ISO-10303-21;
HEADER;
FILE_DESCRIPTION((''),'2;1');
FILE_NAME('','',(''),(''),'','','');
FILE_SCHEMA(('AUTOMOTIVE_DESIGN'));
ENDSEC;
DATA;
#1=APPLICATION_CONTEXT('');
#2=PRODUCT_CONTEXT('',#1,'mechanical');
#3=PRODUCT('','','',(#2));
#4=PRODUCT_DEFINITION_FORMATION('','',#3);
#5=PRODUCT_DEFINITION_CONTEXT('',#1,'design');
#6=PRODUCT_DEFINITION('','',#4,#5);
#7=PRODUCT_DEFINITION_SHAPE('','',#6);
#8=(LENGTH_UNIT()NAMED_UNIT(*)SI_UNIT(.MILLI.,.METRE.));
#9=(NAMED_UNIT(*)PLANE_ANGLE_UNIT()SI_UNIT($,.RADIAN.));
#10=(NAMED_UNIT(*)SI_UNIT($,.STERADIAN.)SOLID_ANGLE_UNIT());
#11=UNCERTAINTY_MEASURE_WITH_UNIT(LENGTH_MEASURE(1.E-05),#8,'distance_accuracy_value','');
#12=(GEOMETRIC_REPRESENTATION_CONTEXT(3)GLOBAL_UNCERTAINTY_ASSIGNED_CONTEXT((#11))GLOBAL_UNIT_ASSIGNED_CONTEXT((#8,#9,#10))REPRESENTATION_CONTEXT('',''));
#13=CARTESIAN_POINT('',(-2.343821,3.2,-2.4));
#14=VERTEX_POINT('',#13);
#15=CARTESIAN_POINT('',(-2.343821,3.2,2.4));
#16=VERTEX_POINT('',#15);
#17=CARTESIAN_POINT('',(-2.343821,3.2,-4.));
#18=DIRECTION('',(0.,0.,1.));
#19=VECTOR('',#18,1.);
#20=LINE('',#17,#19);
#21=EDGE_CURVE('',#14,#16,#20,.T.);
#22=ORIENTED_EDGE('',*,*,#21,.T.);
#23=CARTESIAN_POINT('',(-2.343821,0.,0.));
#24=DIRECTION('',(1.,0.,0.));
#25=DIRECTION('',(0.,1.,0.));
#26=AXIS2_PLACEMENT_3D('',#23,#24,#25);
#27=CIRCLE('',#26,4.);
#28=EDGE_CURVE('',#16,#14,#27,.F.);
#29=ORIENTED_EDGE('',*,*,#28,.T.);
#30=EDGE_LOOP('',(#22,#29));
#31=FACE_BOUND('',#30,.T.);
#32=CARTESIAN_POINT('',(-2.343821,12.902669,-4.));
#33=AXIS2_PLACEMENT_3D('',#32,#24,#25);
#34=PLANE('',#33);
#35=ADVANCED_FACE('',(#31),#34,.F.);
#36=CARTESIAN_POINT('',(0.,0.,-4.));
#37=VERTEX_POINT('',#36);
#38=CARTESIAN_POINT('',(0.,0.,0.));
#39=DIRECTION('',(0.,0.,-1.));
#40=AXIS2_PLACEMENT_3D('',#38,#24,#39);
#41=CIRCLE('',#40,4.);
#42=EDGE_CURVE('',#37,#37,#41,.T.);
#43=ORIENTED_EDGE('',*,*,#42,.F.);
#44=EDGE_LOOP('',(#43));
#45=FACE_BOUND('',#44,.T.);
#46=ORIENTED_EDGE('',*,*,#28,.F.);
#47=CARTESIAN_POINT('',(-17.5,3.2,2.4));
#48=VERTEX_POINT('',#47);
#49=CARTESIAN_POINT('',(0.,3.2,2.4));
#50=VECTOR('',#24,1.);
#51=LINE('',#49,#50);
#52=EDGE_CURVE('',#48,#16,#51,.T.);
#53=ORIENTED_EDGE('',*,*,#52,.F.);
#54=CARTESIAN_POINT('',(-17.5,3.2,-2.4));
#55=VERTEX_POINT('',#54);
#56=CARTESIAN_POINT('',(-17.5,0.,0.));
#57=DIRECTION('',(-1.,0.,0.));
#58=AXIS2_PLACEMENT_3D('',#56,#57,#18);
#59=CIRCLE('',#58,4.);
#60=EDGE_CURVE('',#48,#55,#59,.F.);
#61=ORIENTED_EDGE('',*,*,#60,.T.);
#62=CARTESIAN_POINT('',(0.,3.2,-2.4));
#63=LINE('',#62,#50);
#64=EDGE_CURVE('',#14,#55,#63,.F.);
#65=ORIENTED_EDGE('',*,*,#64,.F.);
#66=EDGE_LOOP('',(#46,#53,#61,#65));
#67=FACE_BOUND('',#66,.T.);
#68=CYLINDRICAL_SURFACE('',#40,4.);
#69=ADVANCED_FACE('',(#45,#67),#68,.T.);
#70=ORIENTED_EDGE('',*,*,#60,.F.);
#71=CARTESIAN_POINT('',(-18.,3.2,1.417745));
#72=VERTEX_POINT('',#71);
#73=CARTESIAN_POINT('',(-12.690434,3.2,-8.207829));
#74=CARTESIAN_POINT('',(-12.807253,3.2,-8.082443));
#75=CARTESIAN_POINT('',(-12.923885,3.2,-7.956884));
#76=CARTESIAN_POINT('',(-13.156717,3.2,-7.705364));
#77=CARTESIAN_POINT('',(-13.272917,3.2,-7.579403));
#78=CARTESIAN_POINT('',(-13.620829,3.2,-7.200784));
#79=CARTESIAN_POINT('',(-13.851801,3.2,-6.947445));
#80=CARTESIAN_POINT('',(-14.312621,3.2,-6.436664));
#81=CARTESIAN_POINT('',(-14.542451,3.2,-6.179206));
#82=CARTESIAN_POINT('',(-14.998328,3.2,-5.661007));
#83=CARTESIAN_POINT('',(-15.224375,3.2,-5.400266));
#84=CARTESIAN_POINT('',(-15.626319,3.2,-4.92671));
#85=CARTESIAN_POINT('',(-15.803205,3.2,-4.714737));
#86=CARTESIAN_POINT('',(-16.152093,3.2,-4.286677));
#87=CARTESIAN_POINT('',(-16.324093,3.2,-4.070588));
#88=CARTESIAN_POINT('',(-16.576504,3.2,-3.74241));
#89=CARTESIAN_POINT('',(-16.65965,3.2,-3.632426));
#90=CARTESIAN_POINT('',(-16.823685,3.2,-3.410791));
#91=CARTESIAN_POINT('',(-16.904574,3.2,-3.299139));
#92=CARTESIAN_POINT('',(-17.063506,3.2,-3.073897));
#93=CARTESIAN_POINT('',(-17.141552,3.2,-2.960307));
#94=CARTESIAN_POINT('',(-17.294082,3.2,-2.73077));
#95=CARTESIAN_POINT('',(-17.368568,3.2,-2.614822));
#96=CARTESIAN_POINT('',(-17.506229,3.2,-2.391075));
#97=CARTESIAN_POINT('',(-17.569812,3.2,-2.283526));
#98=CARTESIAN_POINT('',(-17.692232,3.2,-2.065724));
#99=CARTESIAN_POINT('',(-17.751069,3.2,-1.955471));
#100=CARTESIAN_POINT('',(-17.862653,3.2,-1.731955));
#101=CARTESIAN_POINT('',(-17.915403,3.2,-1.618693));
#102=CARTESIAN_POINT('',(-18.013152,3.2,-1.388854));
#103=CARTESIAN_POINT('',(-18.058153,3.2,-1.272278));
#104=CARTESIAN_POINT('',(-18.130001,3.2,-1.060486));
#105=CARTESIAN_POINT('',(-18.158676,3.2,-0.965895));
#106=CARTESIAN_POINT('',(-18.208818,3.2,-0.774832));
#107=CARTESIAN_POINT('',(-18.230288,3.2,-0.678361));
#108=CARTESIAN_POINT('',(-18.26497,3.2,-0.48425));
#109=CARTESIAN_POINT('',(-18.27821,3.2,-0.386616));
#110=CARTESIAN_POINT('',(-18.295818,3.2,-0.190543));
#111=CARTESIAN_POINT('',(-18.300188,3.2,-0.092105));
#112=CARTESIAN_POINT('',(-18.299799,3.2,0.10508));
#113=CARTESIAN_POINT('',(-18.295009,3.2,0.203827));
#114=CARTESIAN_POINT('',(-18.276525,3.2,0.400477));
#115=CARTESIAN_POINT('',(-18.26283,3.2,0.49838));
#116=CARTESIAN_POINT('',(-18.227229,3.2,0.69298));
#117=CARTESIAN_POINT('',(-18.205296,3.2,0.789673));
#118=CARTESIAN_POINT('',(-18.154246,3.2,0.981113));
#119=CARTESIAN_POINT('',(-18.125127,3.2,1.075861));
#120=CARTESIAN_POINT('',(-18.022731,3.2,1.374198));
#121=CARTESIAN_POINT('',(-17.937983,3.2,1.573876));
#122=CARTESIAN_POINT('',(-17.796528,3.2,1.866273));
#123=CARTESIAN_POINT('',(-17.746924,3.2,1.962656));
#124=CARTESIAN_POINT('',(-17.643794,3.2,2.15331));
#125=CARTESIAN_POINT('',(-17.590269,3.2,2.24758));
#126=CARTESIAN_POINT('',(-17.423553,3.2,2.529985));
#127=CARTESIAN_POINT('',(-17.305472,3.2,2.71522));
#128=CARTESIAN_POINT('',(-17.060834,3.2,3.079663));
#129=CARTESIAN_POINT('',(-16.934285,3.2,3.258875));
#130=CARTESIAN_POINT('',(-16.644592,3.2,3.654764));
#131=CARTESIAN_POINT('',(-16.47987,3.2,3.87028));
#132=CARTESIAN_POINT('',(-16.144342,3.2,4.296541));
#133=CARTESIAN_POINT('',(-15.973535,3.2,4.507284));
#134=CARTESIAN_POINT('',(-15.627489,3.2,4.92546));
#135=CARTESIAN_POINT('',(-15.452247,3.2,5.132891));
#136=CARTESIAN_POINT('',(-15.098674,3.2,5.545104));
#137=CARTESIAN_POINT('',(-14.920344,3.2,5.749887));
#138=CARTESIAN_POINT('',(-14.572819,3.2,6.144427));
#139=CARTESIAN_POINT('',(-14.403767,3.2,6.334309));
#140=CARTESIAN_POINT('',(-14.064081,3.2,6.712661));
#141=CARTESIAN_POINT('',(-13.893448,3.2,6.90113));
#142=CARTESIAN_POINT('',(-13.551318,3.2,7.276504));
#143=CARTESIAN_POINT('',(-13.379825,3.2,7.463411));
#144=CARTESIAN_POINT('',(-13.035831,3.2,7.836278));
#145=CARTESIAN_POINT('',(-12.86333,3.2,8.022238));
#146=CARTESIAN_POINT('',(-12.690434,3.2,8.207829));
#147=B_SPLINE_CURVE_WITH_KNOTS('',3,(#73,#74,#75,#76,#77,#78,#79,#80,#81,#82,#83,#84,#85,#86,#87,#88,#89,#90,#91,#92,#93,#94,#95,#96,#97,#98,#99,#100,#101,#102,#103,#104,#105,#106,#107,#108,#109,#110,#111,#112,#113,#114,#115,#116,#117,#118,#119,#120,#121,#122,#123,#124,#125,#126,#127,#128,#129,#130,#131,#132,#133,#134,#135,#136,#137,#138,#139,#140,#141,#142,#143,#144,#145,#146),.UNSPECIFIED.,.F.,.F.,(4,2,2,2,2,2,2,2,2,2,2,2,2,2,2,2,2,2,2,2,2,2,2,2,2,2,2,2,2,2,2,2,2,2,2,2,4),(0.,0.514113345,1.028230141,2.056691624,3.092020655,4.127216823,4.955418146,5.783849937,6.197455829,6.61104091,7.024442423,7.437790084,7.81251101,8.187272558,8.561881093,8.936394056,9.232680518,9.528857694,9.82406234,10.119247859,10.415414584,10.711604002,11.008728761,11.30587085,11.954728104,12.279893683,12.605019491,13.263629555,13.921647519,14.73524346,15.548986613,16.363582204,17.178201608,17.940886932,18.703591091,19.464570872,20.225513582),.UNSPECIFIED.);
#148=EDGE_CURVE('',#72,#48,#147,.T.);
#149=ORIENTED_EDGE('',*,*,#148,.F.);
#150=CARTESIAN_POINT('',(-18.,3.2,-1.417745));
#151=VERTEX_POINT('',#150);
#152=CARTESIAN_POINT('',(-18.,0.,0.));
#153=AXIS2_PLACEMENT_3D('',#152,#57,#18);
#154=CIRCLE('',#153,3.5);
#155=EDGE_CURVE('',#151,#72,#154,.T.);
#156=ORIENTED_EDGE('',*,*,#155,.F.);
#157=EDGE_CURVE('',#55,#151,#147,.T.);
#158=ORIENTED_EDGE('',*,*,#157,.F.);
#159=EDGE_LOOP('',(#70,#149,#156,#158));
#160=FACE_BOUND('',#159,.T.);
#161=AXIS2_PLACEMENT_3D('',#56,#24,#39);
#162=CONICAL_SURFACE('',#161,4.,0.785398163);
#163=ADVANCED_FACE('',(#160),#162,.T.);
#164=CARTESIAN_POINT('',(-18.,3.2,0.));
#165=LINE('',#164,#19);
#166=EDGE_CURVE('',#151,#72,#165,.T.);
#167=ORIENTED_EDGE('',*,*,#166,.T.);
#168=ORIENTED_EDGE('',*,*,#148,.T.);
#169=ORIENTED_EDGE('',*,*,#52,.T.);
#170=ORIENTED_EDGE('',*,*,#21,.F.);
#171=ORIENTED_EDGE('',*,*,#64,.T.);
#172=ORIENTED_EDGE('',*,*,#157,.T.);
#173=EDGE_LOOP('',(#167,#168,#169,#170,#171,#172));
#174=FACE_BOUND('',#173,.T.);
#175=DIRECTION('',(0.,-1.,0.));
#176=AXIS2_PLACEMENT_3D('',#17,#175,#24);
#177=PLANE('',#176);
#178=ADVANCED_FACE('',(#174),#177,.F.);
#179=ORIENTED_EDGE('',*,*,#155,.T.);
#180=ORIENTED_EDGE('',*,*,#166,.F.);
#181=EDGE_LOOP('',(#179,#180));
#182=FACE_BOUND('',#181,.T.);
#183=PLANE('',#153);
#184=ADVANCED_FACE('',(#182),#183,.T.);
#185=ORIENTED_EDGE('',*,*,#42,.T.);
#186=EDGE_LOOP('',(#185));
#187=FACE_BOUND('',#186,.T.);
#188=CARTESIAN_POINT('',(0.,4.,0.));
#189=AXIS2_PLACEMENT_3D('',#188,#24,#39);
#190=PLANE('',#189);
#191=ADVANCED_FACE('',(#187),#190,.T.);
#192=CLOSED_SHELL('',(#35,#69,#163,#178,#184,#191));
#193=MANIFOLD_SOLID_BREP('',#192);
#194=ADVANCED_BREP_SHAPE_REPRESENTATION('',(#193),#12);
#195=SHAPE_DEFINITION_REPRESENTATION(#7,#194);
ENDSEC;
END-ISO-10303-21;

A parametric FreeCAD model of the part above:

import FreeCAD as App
import Part
import Sketcher

V = App.Vector


def edges_at(feature, points):
    """Names of the edges that pass closest to the given points."""
    edges = feature.Shape.Edges
    near = lambda p: min(range(len(edges)), key=lambda i: edges[i].distToShape(Part.Vertex(*p))[0])
    return sorted({f"Edge{near(p) + 1}" for p in points})


def add_polygon(sketch, points):
    """Adds a closed chain of lines whose ends are joined by coincident constraints."""
    first, n = sketch.GeometryCount, len(points)
    for a, b in zip(points, points[1:] + points[:1]):
        sketch.addGeometry(Part.LineSegment(App.Vector(*a, 0), App.Vector(*b, 0)), False)
    for i in range(n):
        sketch.addConstraint(Sketcher.Constraint("Coincident", first + i, 2, first + (i + 1) % n, 1))

doc = App.newDocument("Part")
body = doc.addObject("PartDesign::Body", "Body")

# Sketch on XY plane
sketch1 = doc.addObject("Sketcher::SketchObject", "Sketch")
body.addObject(sketch1)
sketch1.AttachmentSupport = (doc.XY_Plane, [""])
sketch1.MapMode = "FlatFace"
add_polygon(sketch1, [(-18, 4), (-18, 0), (0, 0), (0, 4)])  # lines 0-3
sketch1.addConstraint(Sketcher.Constraint("Vertical", 0))
sketch1.addConstraint(Sketcher.Constraint("Horizontal", 1))
sketch1.addConstraint(Sketcher.Constraint("Vertical", 2))
sketch1.addConstraint(Sketcher.Constraint("Horizontal", 3))
sketch1.addConstraint(Sketcher.Constraint("Coincident", 1, 2, -1, 1))
sketch1.addConstraint(Sketcher.Constraint("DistanceX", 1, 1, 1, 2, 18.0))
sketch1.addConstraint(Sketcher.Constraint("DistanceY", 0, 2, 0, 1, 4.0))
revolution = doc.addObject("PartDesign::Revolution", "Revolution")
body.addObject(revolution)
revolution.Profile = sketch1
revolution.ReferenceAxis = (sketch1, ["H_Axis"])
revolution.Angle = 360
doc.recompute()

chamfer = doc.addObject("PartDesign::Chamfer", "Chamfer")
body.addObject(chamfer)
chamfer.Base = (revolution, edges_at(revolution, [(-18, 0, 4)]))
chamfer.Size = 0.5

# Sketch on XY plane
sketch2 = doc.addObject("Sketcher::SketchObject", "Sketch001")
body.addObject(sketch2)
sketch2.AttachmentSupport = (doc.XY_Plane, [""])
sketch2.MapMode = "FlatFace"
add_polygon(sketch2, [(-20, 13), (-20, 3), (-2, 3), (-2, 13)])  # lines 0-3
sketch2.addConstraint(Sketcher.Constraint("Vertical", 0))
sketch2.addConstraint(Sketcher.Constraint("Horizontal", 1))
sketch2.addConstraint(Sketcher.Constraint("Vertical", 2))
sketch2.addConstraint(Sketcher.Constraint("Horizontal", 3))
sketch2.addConstraint(Sketcher.Constraint("DistanceY", -1, 1, 0, 2, 3.2))
sketch2.addConstraint(Sketcher.Constraint("DistanceX", 1, 1, 1, 2, 17.317422))
sketch2.addConstraint(Sketcher.Constraint("DistanceY", 0, 2, 0, 1, 9.702669))
sketch2.addConstraint(Sketcher.Constraint("DistanceX", 1, 2, -1, 1, 2.343821))
pocket1 = doc.addObject("PartDesign::Pocket", "Pocket")
body.addObject(pocket1)
pocket1.Profile = sketch2
pocket1.Type = "ThroughAll"
pocket1.Midplane = True

doc.recompute()
